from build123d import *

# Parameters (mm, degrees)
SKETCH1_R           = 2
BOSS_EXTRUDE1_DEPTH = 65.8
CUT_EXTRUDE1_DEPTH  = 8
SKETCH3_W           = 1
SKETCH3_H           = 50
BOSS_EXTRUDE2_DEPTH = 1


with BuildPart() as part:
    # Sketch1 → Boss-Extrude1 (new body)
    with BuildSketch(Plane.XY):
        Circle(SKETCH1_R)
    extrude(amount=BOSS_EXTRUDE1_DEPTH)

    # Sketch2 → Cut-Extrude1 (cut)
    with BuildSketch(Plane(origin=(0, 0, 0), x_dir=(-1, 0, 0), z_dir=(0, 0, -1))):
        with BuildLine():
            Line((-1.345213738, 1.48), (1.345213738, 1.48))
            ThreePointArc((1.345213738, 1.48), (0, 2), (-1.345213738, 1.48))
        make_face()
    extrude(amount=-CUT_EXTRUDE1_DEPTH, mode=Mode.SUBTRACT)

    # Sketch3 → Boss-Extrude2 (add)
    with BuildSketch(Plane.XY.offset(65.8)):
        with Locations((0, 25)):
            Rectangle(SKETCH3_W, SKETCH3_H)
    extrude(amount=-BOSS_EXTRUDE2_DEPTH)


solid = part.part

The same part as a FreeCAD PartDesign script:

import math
import FreeCAD as App
import Part
import Sketcher
from FreeCAD import Vector


def add_polygon(sketch, points):
    """Adds a closed chain of lines whose ends are joined by coincident constraints."""
    first, n = sketch.GeometryCount, len(points)
    for a, b in zip(points, points[1:] + points[:1]):
        sketch.addGeometry(Part.LineSegment(App.Vector(*a, 0), App.Vector(*b, 0)), False)
    for i in range(n):
        sketch.addConstraint(Sketcher.Constraint("Coincident", first + i, 2, first + (i + 1) % n, 1))

doc = App.newDocument("Part")
body = doc.addObject("PartDesign::Body", "Body")

sketch1 = doc.addObject("Sketcher::SketchObject", "Sketch")
body.addObject(sketch1)
sketch1.AttachmentSupport = (doc.XY_Plane, [""])
sketch1.MapMode = "FlatFace"
sketch1.addGeometry(Part.Circle(Vector(0, 0, 0), Vector(0, 0, 1), 2), False)
sketch1.addConstraint(Sketcher.Constraint("Coincident", 0, 3, -1, 1))
sketch1.addConstraint(Sketcher.Constraint("Diameter", 0, 4.0))
pad1 = doc.addObject("PartDesign::Pad", "Pad")
body.addObject(pad1)
pad1.Profile = sketch1
pad1.Length = 65.8

sketch2 = doc.addObject("Sketcher::SketchObject", "Sketch001")
body.addObject(sketch2)
sketch2.AttachmentSupport = (doc.XY_Plane, [""])
sketch2.MapMode = "FlatFace"
sketch2.addGeometry(Part.LineSegment(Vector(1.3, 1.5, 0), Vector(-1.3, 1.5, 0)), False)
sketch2.addGeometry(Part.ArcOfCircle(Part.Circle(Vector(0, 0, 0), Vector(0, 0, 1), 2), math.radians(48), math.radians(132)), False)
sketch2.addConstraint(Sketcher.Constraint("Coincident", 0, 1, 1, 1))
sketch2.addConstraint(Sketcher.Constraint("Coincident", 1, 2, 0, 2))
sketch2.addConstraint(Sketcher.Constraint("Horizontal", 0))
sketch2.addConstraint(Sketcher.Constraint("Coincident", 1, 3, -1, 1))
sketch2.addConstraint(Sketcher.Constraint("Radius", 1, 2.0))
sketch2.addConstraint(Sketcher.Constraint("DistanceY", -1, 1, 0, 1, 1.48))
pocket1 = doc.addObject("PartDesign::Pocket", "Pocket")
body.addObject(pocket1)
pocket1.Profile = sketch2
pocket1.Length = 8
pocket1.Reversed = True

sketch3 = doc.addObject("Sketcher::SketchObject", "Sketch002")
body.addObject(sketch3)
sketch3.AttachmentSupport = (doc.XY_Plane, [""])
sketch3.MapMode = "FlatFace"
sketch3.AttachmentOffset = App.Placement(Vector(0, 0, 65.8), App.Rotation())
add_polygon(sketch3, [(-0.5, 50), (-0.5, 0), (0.5, 0), (0.5, 50)])
sketch3.addConstraint(Sketcher.Constraint("Vertical", 0))
sketch3.addConstraint(Sketcher.Constraint("Horizontal", 1))
sketch3.addConstraint(Sketcher.Constraint("Vertical", 2))
sketch3.addConstraint(Sketcher.Constraint("Horizontal", 3))
sketch3.addConstraint(Sketcher.Constraint("Symmetric", 0, 2, 1, 2, -1, 1))
sketch3.addConstraint(Sketcher.Constraint("DistanceX", 1, 1, 1, 2, 1.0))
sketch3.addConstraint(Sketcher.Constraint("DistanceY", 0, 2, 0, 1, 50.0))
pad2 = doc.addObject("PartDesign::Pad", "Pad001")
body.addObject(pad2)
pad2.Profile = sketch3
pad2.Length = 1
pad2.Reversed = True

doc.recompute()
